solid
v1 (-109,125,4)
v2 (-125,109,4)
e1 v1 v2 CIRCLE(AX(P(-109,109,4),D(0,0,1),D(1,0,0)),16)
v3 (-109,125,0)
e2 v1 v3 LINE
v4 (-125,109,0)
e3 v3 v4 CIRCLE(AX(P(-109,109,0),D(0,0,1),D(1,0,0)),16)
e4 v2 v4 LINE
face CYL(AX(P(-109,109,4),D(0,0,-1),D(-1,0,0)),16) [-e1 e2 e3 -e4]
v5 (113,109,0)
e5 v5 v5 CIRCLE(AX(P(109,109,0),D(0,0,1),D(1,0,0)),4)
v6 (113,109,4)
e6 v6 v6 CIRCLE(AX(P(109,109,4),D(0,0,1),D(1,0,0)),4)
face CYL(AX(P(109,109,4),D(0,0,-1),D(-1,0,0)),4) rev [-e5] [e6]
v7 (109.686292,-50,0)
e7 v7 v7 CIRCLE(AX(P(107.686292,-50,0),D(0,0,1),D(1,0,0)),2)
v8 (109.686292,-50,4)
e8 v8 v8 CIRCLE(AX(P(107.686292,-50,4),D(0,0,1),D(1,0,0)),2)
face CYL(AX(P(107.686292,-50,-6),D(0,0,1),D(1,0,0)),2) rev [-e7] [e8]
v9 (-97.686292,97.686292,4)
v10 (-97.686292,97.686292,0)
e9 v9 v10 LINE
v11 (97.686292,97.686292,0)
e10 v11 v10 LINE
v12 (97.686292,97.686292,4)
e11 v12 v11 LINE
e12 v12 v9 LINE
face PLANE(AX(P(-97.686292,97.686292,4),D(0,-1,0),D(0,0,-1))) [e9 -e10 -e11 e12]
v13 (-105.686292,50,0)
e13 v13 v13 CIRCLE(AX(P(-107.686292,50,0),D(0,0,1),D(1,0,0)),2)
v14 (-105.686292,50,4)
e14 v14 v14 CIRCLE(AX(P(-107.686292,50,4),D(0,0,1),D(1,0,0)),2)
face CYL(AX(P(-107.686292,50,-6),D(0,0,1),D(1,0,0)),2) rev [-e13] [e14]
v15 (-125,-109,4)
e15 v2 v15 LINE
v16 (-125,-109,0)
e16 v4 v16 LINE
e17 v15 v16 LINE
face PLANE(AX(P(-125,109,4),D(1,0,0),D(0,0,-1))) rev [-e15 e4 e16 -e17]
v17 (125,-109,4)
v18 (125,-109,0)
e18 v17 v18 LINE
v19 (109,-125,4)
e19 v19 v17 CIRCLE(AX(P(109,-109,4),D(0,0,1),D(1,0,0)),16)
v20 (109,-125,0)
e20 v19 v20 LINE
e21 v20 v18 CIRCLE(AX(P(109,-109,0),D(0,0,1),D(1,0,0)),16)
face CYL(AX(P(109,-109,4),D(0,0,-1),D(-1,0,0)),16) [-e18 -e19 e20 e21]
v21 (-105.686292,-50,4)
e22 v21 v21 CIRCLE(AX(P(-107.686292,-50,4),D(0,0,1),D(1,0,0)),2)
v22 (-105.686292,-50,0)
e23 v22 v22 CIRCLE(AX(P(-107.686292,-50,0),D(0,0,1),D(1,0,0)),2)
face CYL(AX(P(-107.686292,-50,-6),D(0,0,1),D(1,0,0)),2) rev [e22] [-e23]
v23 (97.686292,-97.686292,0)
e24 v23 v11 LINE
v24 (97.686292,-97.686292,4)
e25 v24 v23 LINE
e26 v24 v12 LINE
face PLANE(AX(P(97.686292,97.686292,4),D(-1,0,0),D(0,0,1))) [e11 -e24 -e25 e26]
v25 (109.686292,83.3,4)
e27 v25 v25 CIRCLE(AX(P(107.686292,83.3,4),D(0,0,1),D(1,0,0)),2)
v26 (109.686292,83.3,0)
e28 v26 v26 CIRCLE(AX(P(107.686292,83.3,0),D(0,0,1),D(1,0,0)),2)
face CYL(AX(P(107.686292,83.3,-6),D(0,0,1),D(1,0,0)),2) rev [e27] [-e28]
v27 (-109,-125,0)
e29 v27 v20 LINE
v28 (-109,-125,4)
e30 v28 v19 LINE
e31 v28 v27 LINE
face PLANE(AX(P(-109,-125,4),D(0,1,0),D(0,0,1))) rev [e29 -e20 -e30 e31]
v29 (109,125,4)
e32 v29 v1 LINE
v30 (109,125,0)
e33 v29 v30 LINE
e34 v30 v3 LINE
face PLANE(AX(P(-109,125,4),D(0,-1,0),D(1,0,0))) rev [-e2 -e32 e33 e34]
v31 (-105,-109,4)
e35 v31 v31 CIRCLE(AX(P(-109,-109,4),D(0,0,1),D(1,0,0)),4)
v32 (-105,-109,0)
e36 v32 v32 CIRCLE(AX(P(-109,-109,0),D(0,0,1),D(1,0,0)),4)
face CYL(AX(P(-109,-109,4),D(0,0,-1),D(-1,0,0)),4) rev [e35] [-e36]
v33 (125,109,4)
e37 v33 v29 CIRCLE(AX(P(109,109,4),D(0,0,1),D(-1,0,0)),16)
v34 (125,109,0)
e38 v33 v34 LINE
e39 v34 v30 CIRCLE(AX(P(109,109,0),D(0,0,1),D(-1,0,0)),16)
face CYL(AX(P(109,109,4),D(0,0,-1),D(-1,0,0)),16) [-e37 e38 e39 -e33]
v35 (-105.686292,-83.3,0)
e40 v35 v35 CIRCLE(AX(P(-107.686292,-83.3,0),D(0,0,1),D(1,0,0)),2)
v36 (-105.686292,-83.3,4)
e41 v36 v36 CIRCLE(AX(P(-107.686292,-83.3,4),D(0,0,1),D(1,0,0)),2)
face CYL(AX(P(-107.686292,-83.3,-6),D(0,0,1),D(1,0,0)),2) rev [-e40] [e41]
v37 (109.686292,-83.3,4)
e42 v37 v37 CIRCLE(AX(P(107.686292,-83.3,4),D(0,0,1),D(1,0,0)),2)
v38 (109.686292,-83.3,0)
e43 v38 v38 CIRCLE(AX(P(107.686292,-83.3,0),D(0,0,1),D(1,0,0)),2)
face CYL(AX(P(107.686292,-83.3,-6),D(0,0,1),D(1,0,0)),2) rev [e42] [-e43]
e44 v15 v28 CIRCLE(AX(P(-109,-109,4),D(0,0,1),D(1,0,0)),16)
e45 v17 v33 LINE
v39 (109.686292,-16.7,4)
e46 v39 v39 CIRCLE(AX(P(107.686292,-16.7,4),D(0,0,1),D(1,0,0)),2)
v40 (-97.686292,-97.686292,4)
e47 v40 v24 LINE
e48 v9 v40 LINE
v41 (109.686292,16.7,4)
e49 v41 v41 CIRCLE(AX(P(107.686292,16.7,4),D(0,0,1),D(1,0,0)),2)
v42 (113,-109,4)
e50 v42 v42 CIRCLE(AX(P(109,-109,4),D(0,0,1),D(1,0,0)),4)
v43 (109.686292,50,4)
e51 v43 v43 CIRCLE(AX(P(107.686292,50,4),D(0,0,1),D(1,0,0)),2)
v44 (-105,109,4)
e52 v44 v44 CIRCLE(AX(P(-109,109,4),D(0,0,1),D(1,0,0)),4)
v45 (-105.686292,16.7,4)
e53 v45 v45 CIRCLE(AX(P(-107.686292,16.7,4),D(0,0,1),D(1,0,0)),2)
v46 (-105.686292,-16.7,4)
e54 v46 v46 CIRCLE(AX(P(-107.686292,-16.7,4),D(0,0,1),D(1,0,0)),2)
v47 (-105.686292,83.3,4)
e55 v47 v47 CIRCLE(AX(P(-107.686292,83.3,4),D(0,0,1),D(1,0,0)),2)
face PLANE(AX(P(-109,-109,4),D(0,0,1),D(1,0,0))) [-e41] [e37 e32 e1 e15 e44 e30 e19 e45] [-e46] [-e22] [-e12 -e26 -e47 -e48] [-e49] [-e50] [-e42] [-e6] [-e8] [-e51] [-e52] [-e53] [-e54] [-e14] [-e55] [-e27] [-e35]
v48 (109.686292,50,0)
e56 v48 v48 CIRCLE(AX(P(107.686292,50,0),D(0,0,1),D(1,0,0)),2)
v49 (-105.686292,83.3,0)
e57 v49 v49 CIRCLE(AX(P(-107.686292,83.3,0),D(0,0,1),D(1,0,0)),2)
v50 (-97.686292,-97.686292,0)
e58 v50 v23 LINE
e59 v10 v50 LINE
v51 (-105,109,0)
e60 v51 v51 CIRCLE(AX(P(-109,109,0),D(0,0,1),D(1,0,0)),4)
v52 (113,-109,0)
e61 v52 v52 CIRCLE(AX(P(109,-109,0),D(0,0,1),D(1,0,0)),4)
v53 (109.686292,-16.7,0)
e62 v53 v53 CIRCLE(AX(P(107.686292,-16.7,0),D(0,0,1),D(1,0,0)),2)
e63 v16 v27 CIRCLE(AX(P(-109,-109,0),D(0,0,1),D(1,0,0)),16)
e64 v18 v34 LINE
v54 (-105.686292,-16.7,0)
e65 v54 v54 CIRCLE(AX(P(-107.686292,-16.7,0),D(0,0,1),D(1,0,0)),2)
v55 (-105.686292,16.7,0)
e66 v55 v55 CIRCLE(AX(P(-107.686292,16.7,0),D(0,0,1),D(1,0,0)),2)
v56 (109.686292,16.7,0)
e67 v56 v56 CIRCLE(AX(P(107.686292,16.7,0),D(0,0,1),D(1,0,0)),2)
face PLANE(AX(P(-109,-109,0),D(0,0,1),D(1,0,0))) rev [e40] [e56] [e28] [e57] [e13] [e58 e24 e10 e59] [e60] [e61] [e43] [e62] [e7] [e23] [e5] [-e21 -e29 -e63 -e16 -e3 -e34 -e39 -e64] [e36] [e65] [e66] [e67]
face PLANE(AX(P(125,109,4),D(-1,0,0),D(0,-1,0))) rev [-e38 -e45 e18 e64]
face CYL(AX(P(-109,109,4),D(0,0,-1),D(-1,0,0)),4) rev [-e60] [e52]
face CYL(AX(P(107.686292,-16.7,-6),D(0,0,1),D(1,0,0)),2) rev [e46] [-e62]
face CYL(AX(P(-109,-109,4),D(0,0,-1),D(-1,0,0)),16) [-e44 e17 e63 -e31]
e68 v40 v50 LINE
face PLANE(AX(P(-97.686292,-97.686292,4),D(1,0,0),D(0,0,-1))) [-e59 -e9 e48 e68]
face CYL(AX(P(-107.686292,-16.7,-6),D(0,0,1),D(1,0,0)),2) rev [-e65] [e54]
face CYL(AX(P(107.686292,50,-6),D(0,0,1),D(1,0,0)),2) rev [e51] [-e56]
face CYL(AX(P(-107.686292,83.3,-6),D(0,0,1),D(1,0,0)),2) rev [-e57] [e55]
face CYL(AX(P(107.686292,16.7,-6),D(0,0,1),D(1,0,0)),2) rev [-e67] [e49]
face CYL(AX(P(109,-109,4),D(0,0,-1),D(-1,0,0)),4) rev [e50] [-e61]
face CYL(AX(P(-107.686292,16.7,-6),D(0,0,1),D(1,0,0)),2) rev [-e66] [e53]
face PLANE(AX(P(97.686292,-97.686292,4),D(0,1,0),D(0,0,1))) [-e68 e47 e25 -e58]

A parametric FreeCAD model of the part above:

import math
import FreeCAD as App
import Part
import Sketcher
from FreeCAD import Vector
Q = App.Units.Quantity

doc = App.newDocument("Part")
body = doc.addObject("PartDesign::Body", "Body")

# Sketch on XY plane
sketch1 = body.newObject("Sketcher::SketchObject", "Sketch")
sketch1.AttachmentSupport = (doc.getObject("XY_Plane"), [""])
sketch1.MapMode = "FlatFace"
sketch1.addGeometry([
    Part.LineSegment(Vector(109, 125, 0), Vector(-109, 125, 0)),  # 0
    Part.ArcOfCircle(Part.Circle(Vector(-109, 109, 0), Vector(0, 0, 1), 16), math.radians(90), math.radians(180)),  # 1
    Part.LineSegment(Vector(-125, 109, 0), Vector(-125, -109, 0)),  # 2
    Part.ArcOfCircle(Part.Circle(Vector(-109, -109, 0), Vector(0, 0, 1), 16), math.radians(180), math.radians(270)),  # 3
    Part.LineSegment(Vector(-109, -125, 0), Vector(109, -125, 0)),  # 4
    Part.ArcOfCircle(Part.Circle(Vector(109, -109, 0), Vector(0, 0, 1), 16), math.radians(-90), math.radians(0)),  # 5
    Part.LineSegment(Vector(125, -109, 0), Vector(125, 109, 0)),  # 6
    Part.ArcOfCircle(Part.Circle(Vector(109, 109, 0), Vector(0, 0, 1), 16), math.radians(0), math.radians(90)),  # 7
    Part.Circle(Vector(109, -109, 0), Vector(0, 0, 1), 4),  # 8
    Part.Circle(Vector(-109, -109, 0), Vector(0, 0, 1), 4),  # 9
    Part.Circle(Vector(109, 109, 0), Vector(0, 0, 1), 4),  # 10
    Part.LineSegment(Vector(-97.686292, -97.686292, 0), Vector(-97.686292, 97.686292, 0)),  # 11
    Part.LineSegment(Vector(-97.686292, 97.686292, 0), Vector(97.686292, 97.686292, 0)),  # 12
    Part.LineSegment(Vector(97.686292, 97.686292, 0), Vector(97.686292, -97.686292, 0)),  # 13
    Part.LineSegment(Vector(97.686292, -97.686292, 0), Vector(-97.686292, -97.686292, 0)),  # 14
    Part.Circle(Vector(-109, 109, 0), Vector(0, 0, 1), 4),  # 15
], False)
sketch1.addConstraint([
    Sketcher.Constraint("Tangent", 0, 2, 1, 1),
    Sketcher.Constraint("Tangent", 1, 2, 2, 1),
    Sketcher.Constraint("Tangent", 2, 2, 3, 1),
    Sketcher.Constraint("Tangent", 3, 2, 4, 1),
    Sketcher.Constraint("Tangent", 4, 2, 5, 1),
    Sketcher.Constraint("Tangent", 5, 2, 6, 1),
    Sketcher.Constraint("Tangent", 6, 2, 7, 1),
    Sketcher.Constraint("Tangent", 7, 2, 0, 1),
    Sketcher.Constraint("Coincident", 11, 2, 12, 1),
    Sketcher.Constraint("Coincident", 12, 2, 13, 1),
    Sketcher.Constraint("Coincident", 13, 2, 14, 1),
    Sketcher.Constraint("Coincident", 14, 2, 11, 1),
    Sketcher.Constraint("Horizontal", 0),
    Sketcher.Constraint("Vertical", 2),
    Sketcher.Constraint("Horizontal", 4),
    Sketcher.Constraint("Vertical", 6),
    Sketcher.Constraint("Vertical", 11),
    Sketcher.Constraint("Horizontal", 12),
    Sketcher.Constraint("Vertical", 13),
    Sketcher.Constraint("Horizontal", 14),
    Sketcher.Constraint("Coincident", 8, 3, 5, 3),
    Sketcher.Constraint("Coincident", 9, 3, 3, 3),
    Sketcher.Constraint("Coincident", 10, 3, 7, 3),
    Sketcher.Constraint("Coincident", 15, 3, 1, 3),
    Sketcher.Constraint("Equal", 1, 3),
    Sketcher.Constraint("Equal", 3, 5),
    Sketcher.Constraint("Equal", 5, 7),
    Sketcher.Constraint("Equal", 8, 9),
    Sketcher.Constraint("Equal", 9, 10),
    Sketcher.Constraint("Equal", 10, 15),
    Sketcher.Constraint("Symmetric", 1, 3, 5, 3, -1, 1),
    Sketcher.Constraint("Symmetric", 11, 2, 13, 2, -1, 1),
    Sketcher.Constraint("Equal", 4, 2),
    Sketcher.Constraint("Equal", 14, 11),
    Sketcher.Constraint("Diameter", 8, Q("8 mm")),
    Sketcher.Constraint("Radius", 1, Q("16 mm")),
    Sketcher.Constraint("DistanceX", 0, 2, 0, 1, Q("218 mm")),
    Sketcher.Constraint("DistanceX", 12, 1, 12, 2, Q("195.372583 mm")),
])
pad1 = body.newObject("PartDesign::Pad", "Pad")
pad1.Profile = sketch1
pad1.Length = 4

# Sketch on XY plane
sketch2 = body.newObject("Sketcher::SketchObject", "Sketch001")
sketch2.AttachmentSupport = (doc.getObject("XY_Plane"), [""])
sketch2.MapMode = "FlatFace"
sketch2.AttachmentOffset = App.Placement(Vector(0, 0, 4), App.Rotation())
sketch2.addGeometry([
    Part.Circle(Vector(-107.686292, 83.3, 0), Vector(0, 0, 1), 2),  # 0
    Part.Circle(Vector(-107.686292, 50, 0), Vector(0, 0, 1), 2),  # 1
    Part.Circle(Vector(-107.686292, 16.7, 0), Vector(0, 0, 1), 2),  # 2
    Part.Circle(Vector(-107.686292, -16.7, 0), Vector(0, 0, 1), 2),  # 3
    Part.Circle(Vector(-107.686292, -50, 0), Vector(0, 0, 1), 2),  # 4
    Part.Circle(Vector(-107.686292, -83.3, 0), Vector(0, 0, 1), 2),  # 5
    Part.Circle(Vector(107.686292, -83.3, 0), Vector(0, 0, 1), 2),  # 6
    Part.Circle(Vector(107.686292, -50, 0), Vector(0, 0, 1), 2),  # 7
    Part.Circle(Vector(107.686292, -16.7, 0), Vector(0, 0, 1), 2),  # 8
    Part.Circle(Vector(107.686292, 16.7, 0), Vector(0, 0, 1), 2),  # 9
    Part.Circle(Vector(107.686292, 50, 0), Vector(0, 0, 1), 2),  # 10
    Part.Circle(Vector(107.686292, 83.3, 0), Vector(0, 0, 1), 2),  # 11
], False)
sketch2.addConstraint([
    Sketcher.Constraint("Equal", 0, 1),
    Sketcher.Constraint("Equal", 1, 2),
    Sketcher.Constraint("Equal", 2, 3),
    Sketcher.Constraint("Equal", 3, 4),
    Sketcher.Constraint("Equal", 4, 5),
    Sketcher.Constraint("Equal", 5, 6),
    Sketcher.Constraint("Equal", 6, 7),
    Sketcher.Constraint("Equal", 7, 8),
    Sketcher.Constraint("Equal", 8, 9),
    Sketcher.Constraint("Equal", 9, 10),
    Sketcher.Constraint("Equal", 10, 11),
    Sketcher.Constraint("Symmetric", 0, 3, 6, 3, -1, 1),
    Sketcher.Constraint("Symmetric", 1, 3, 7, 3, -1, 1),
    Sketcher.Constraint("Symmetric", 2, 3, 8, 3, -1, 1),
    Sketcher.Constraint("Symmetric", 3, 3, 9, 3, -1, 1),
    Sketcher.Constraint("Symmetric", 4, 3, 10, 3, -1, 1),
    Sketcher.Constraint("Symmetric", 5, 3, 11, 3, -1, 1),
    Sketcher.Constraint("Symmetric", 5, 3, 6, 3, -2),
    Sketcher.Constraint("Symmetric", 4, 3, 7, 3, -2),
    Sketcher.Constraint("Symmetric", 3, 3, 8, 3, -2),
    Sketcher.Constraint("Vertical", 0, 3, 1, 3),
    Sketcher.Constraint("Vertical", 1, 3, 2, 3),
    Sketcher.Constraint("Diameter", 0, Q("4 mm")),
    Sketcher.Constraint("DistanceY", -1, 1, 1, 3, Q("50 mm")),
    Sketcher.Constraint("DistanceY", 3, 3, 0, 3, Q("100 mm")),
    Sketcher.Constraint("DistanceY", -1, 1, 0, 3, Q("83.3 mm")),
    Sketcher.Constraint("DistanceX", 0, 3, -1, 1, Q("107.686292 mm")),
])
pocket1 = body.newObject("PartDesign::Pocket", "Pocket")
pocket1.Profile = sketch2
pocket1.Length = 10

doc.recompute()
